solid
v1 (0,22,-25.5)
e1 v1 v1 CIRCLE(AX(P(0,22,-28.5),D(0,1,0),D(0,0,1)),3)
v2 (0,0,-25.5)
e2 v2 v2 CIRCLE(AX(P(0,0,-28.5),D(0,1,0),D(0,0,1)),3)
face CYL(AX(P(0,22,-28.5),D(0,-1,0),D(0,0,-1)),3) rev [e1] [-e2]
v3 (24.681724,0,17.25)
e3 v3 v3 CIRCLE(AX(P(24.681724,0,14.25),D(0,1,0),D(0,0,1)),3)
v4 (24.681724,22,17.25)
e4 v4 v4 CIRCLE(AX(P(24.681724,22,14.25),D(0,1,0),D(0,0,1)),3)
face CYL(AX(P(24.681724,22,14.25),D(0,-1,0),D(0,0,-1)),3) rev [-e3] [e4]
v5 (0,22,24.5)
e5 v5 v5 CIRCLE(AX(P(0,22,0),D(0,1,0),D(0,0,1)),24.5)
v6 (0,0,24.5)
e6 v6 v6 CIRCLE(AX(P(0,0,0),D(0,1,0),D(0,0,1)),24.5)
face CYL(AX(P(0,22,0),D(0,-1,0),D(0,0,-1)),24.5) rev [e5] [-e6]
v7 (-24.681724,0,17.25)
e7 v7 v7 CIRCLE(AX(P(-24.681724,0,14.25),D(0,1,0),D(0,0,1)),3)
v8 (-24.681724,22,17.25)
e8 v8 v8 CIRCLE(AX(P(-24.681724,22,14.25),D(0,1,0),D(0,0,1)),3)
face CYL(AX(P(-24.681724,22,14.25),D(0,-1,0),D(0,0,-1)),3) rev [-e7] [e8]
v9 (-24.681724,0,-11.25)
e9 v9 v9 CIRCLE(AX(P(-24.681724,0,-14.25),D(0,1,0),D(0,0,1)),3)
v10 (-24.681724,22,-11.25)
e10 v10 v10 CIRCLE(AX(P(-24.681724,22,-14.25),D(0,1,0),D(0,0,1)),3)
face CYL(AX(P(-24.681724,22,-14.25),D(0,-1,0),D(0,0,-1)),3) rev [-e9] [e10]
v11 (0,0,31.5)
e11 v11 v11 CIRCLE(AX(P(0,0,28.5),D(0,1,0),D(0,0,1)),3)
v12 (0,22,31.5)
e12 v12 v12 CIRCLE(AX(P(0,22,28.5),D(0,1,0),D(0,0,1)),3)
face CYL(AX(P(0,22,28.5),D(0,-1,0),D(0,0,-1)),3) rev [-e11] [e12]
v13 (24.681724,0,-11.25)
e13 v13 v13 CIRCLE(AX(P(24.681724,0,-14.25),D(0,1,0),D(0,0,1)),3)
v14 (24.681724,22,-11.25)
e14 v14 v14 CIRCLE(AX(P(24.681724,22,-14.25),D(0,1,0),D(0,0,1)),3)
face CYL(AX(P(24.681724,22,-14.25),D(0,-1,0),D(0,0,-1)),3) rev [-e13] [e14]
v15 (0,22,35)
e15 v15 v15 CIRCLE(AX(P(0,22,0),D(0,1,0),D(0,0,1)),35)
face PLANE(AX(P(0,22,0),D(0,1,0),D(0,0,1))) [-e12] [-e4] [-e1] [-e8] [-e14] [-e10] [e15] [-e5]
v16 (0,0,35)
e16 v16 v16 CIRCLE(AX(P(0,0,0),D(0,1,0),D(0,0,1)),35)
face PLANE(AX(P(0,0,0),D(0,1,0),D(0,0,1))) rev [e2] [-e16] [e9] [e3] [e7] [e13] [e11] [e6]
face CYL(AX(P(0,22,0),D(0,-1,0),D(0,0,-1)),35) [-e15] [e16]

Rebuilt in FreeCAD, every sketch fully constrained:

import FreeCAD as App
import Part
import Sketcher

doc = App.newDocument("Part")
body = doc.addObject("PartDesign::Body", "Body")

sketch1 = doc.addObject("Sketcher::SketchObject", "Sketch")
body.addObject(sketch1)
sketch1.AttachmentSupport = (doc.XZ_Plane, [""])
sketch1.MapMode = "FlatFace"
sketch1.addGeometry([
    Part.Circle(App.Vector(0, 0, 0), App.Vector(0, 0, 1), 35),
    Part.Circle(App.Vector(-24.7, -14.2, 0), App.Vector(0, 0, 1), 3),
    Part.Circle(App.Vector(-24.7, 14.2, 0), App.Vector(0, 0, 1), 3),
    Part.Circle(App.Vector(0, -28.5, 0), App.Vector(0, 0, 1), 3),
    Part.Circle(App.Vector(24.7, -14.2, 0), App.Vector(0, 0, 1), 3),
    Part.Circle(App.Vector(0, 0, 0), App.Vector(0, 0, 1), 24.5),
    Part.Circle(App.Vector(0, 28.5, 0), App.Vector(0, 0, 1), 3),
    Part.Circle(App.Vector(24.7, 14.2, 0), App.Vector(0, 0, 1), 3),
], False)
sketch1.addConstraint([
    Sketcher.Constraint("Coincident", 0, 3, -1, 1),
    Sketcher.Constraint("Coincident", 5, 3, -1, 1),
    Sketcher.Constraint("Equal", 1, 2),
    Sketcher.Constraint("Equal", 2, 3),
    Sketcher.Constraint("Equal", 3, 4),
    Sketcher.Constraint("Equal", 4, 6),
    Sketcher.Constraint("Equal", 6, 7),
    Sketcher.Constraint("Symmetric", 2, 3, 4, 3, -1, 1),
    Sketcher.Constraint("Symmetric", 3, 3, 6, 3, -1, 1),
    Sketcher.Constraint("Symmetric", 1, 3, 7, 3, -1, 1),
    Sketcher.Constraint("Symmetric", 1, 3, 4, 3, -2),
    Sketcher.Constraint("PointOnObject", 3, 3, -2),
    Sketcher.Constraint("Diameter", 0, 70.0),
    Sketcher.Constraint("Diameter", 1, 6.0),
    Sketcher.Constraint("Diameter", 5, 49.0),
    Sketcher.Constraint("DistanceY", 3, 3, -1, 1, 28.5),
    Sketcher.Constraint("DistanceY", 1, 3, 2, 3, 28.5),
    Sketcher.Constraint("DistanceX", 1, 3, 4, 3, 49.363448),
])
pad1 = doc.addObject("PartDesign::Pad", "Pad")
body.addObject(pad1)
pad1.Profile = sketch1
pad1.Length = 22
pad1.Reversed = True

doc.recompute()
